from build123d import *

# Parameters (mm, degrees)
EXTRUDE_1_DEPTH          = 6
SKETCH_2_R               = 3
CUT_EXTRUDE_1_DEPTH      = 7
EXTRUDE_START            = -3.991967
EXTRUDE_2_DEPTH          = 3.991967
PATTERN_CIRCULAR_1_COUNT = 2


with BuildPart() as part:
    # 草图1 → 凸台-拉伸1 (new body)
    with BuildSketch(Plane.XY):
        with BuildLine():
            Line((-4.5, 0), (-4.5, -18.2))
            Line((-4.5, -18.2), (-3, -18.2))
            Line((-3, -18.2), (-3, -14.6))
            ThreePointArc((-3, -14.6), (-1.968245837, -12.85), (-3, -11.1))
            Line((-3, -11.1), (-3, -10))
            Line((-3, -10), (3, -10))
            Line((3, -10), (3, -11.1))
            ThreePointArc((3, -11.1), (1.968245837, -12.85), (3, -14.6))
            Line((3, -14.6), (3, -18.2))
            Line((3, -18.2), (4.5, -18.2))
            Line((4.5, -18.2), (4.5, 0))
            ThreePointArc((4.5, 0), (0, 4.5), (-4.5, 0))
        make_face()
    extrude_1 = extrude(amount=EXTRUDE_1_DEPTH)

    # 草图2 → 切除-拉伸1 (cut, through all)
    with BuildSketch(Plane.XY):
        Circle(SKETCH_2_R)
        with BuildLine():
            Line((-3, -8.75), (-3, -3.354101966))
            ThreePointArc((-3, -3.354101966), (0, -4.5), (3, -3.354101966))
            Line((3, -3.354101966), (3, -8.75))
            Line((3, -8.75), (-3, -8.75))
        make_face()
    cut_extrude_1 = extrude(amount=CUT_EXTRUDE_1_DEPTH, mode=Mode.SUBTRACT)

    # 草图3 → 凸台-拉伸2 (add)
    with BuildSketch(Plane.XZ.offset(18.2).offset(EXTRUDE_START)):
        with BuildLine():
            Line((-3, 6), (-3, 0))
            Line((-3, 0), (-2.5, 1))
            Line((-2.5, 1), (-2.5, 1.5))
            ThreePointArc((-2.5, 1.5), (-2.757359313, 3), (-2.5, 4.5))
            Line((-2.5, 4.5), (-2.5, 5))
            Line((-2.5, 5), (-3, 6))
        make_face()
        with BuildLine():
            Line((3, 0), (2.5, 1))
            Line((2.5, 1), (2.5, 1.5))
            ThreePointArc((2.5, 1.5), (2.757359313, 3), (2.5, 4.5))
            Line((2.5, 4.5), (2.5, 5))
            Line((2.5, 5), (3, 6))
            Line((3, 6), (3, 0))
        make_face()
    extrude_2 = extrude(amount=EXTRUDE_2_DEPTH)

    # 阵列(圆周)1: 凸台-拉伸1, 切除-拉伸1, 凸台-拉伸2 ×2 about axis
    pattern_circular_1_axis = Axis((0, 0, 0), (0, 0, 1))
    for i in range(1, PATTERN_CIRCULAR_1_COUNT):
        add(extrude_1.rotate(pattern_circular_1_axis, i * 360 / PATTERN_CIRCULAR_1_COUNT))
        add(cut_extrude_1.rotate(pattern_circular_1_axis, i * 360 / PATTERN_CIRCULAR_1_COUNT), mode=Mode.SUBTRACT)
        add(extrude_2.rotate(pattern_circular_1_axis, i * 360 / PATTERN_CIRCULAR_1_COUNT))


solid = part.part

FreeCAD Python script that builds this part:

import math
import FreeCAD as App
import Part
import Sketcher
from FreeCAD import Vector

doc = App.newDocument("Part")
body = doc.addObject("PartDesign::Body", "Body")

sketch1 = doc.addObject("Sketcher::SketchObject", "Sketch")
body.addObject(sketch1)
sketch1.AttachmentSupport = (doc.XY_Plane, [""])
sketch1.MapMode = "FlatFace"
sketch1.addGeometry(Part.LineSegment(Vector(-4.5, 0, 0), Vector(-4.5, -18.2, 0)), False)
sketch1.addGeometry(Part.LineSegment(Vector(-4.5, -18.2, 0), Vector(-3, -18.2, 0)), False)
sketch1.addGeometry(Part.LineSegment(Vector(-3, -18.2, 0), Vector(-3, -14.6, 0)), False)
sketch1.addGeometry(Part.ArcOfCircle(Part.Circle(Vector(-4, -12.8, 0), Vector(0, 0, 1), 2), math.radians(-61), math.radians(61)), False)
sketch1.addGeometry(Part.LineSegment(Vector(-3, -11.1, 0), Vector(-3, -10, 0)), False)
sketch1.addGeometry(Part.LineSegment(Vector(-3, -10, 0), Vector(3, -10, 0)), False)
sketch1.addGeometry(Part.LineSegment(Vector(3, -10, 0), Vector(3, -11.1, 0)), False)
sketch1.addGeometry(Part.ArcOfCircle(Part.Circle(Vector(4, -12.8, 0), Vector(0, 0, 1), 2), math.radians(119), math.radians(241)), False)
sketch1.addGeometry(Part.LineSegment(Vector(3, -14.6, 0), Vector(3, -18.2, 0)), False)
sketch1.addGeometry(Part.LineSegment(Vector(3, -18.2, 0), Vector(4.5, -18.2, 0)), False)
sketch1.addGeometry(Part.LineSegment(Vector(4.5, -18.2, 0), Vector(4.5, 0, 0)), False)
sketch1.addGeometry(Part.ArcOfCircle(Part.Circle(Vector(0, 0, 0), Vector(0, 0, 1), 4.5), math.radians(0), math.radians(180)), False)
sketch1.addConstraint(Sketcher.Constraint("Coincident", 0, 2, 1, 1))
sketch1.addConstraint(Sketcher.Constraint("Coincident", 1, 2, 2, 1))
sketch1.addConstraint(Sketcher.Constraint("Coincident", 2, 2, 3, 1))
sketch1.addConstraint(Sketcher.Constraint("Coincident", 3, 2, 4, 1))
sketch1.addConstraint(Sketcher.Constraint("Coincident", 4, 2, 5, 1))
sketch1.addConstraint(Sketcher.Constraint("Coincident", 5, 2, 6, 1))
sketch1.addConstraint(Sketcher.Constraint("Coincident", 6, 2, 7, 1))
sketch1.addConstraint(Sketcher.Constraint("Coincident", 7, 2, 8, 1))
sketch1.addConstraint(Sketcher.Constraint("Coincident", 8, 2, 9, 1))
sketch1.addConstraint(Sketcher.Constraint("Coincident", 9, 2, 10, 1))
sketch1.addConstraint(Sketcher.Constraint("Tangent", 10, 2, 11, 1))
sketch1.addConstraint(Sketcher.Constraint("Tangent", 11, 2, 0, 1))
sketch1.addConstraint(Sketcher.Constraint("Vertical", 0))
sketch1.addConstraint(Sketcher.Constraint("Horizontal", 1))
sketch1.addConstraint(Sketcher.Constraint("Vertical", 2))
sketch1.addConstraint(Sketcher.Constraint("Vertical", 4))
sketch1.addConstraint(Sketcher.Constraint("Horizontal", 5))
sketch1.addConstraint(Sketcher.Constraint("Vertical", 6))
sketch1.addConstraint(Sketcher.Constraint("Vertical", 8))
sketch1.addConstraint(Sketcher.Constraint("Horizontal", 9))
sketch1.addConstraint(Sketcher.Constraint("Vertical", 10))
sketch1.addConstraint(Sketcher.Constraint("Coincident", 11, 3, -1, 1))
sketch1.addConstraint(Sketcher.Constraint("Equal", 3, 7))
sketch1.addConstraint(Sketcher.Constraint("Symmetric", 3, 3, 7, 3, -2))
sketch1.addConstraint(Sketcher.Constraint("Symmetric", 1, 2, 8, 2, -2))
sketch1.addConstraint(Sketcher.Constraint("Horizontal", 3, 2, 6, 2))
sketch1.addConstraint(Sketcher.Constraint("Vertical", 2, 2, 3, 2))
sketch1.addConstraint(Sketcher.Constraint("Radius", 3, 2.0))
sketch1.addConstraint(Sketcher.Constraint("Radius", 11, 4.5))
sketch1.addConstraint(Sketcher.Constraint("DistanceX", 5, 1, 5, 2, 6.0))
sketch1.addConstraint(Sketcher.Constraint("DistanceY", 0, 2, 0, 1, 18.2))
sketch1.addConstraint(Sketcher.Constraint("DistanceY", 2, 1, 2, 2, 3.6))
sketch1.addConstraint(Sketcher.Constraint("DistanceY", 4, 1, 4, 2, 1.1))
sketch1.addConstraint(Sketcher.Constraint("DistanceY", 4, 2, -1, 1, 10.0))
pad1 = doc.addObject("PartDesign::Pad", "Pad")
body.addObject(pad1)
pad1.Profile = sketch1
pad1.Length = 6

sketch2 = doc.addObject("Sketcher::SketchObject", "Sketch001")
body.addObject(sketch2)
sketch2.AttachmentSupport = (doc.XY_Plane, [""])
sketch2.MapMode = "FlatFace"
sketch2.addGeometry(Part.Circle(Vector(0, 0, 0), Vector(0, 0, 1), 3), False)
sketch2.addGeometry(Part.LineSegment(Vector(-3, -3.4, 0), Vector(-3, -8.8, 0)), False)
sketch2.addGeometry(Part.LineSegment(Vector(-3, -8.8, 0), Vector(3, -8.8, 0)), False)
sketch2.addGeometry(Part.LineSegment(Vector(3, -8.8, 0), Vector(3, -3.4, 0)), False)
sketch2.addGeometry(Part.ArcOfCircle(Part.Circle(Vector(0, 0, 0), Vector(0, 0, 1), 4.5), math.radians(-132), math.radians(-48)), False)
sketch2.addConstraint(Sketcher.Constraint("Coincident", 1, 2, 2, 1))
sketch2.addConstraint(Sketcher.Constraint("Coincident", 2, 2, 3, 1))
sketch2.addConstraint(Sketcher.Constraint("Coincident", 3, 2, 4, 2))
sketch2.addConstraint(Sketcher.Constraint("Coincident", 4, 1, 1, 1))
sketch2.addConstraint(Sketcher.Constraint("Vertical", 1))
sketch2.addConstraint(Sketcher.Constraint("Horizontal", 2))
sketch2.addConstraint(Sketcher.Constraint("Vertical", 3))
sketch2.addConstraint(Sketcher.Constraint("Coincident", 0, 3, -1, 1))
sketch2.addConstraint(Sketcher.Constraint("Coincident", 4, 3, -1, 1))
sketch2.addConstraint(Sketcher.Constraint("Horizontal", 3, 2, 4, 1))
sketch2.addConstraint(Sketcher.Constraint("Diameter", 0, 6.0))
sketch2.addConstraint(Sketcher.Constraint("Radius", 4, 4.5))
sketch2.addConstraint(Sketcher.Constraint("DistanceX", 2, 1, 2, 2, 6.0))
sketch2.addConstraint(Sketcher.Constraint("DistanceY", 1, 2, -1, 1, 8.75))
pocket1 = doc.addObject("PartDesign::Pocket", "Pocket")
body.addObject(pocket1)
pocket1.Profile = sketch2
pocket1.Type = "ThroughAll"
pocket1.Reversed = True

sketch3 = doc.addObject("Sketcher::SketchObject", "Sketch002")
body.addObject(sketch3)
sketch3.AttachmentSupport = (doc.XZ_Plane, [""])
sketch3.MapMode = "FlatFace"
sketch3.AttachmentOffset = App.Placement(Vector(0, 0, 14.208033), App.Rotation())
sketch3.addGeometry(Part.LineSegment(Vector(-3, 6, 0), Vector(-3, 0, 0)), False)
sketch3.addGeometry(Part.LineSegment(Vector(-3, 0, 0), Vector(-2.5, 1, 0)), False)
sketch3.addGeometry(Part.LineSegment(Vector(-2.5, 1, 0), Vector(-2.5, 1.5, 0)), False)
sketch3.addGeometry(Part.ArcOfCircle(Part.Circle(Vector(1.7, 3, 0), Vector(0, 0, 1), 4.5), math.radians(161), math.radians(199)), False)
sketch3.addGeometry(Part.LineSegment(Vector(-2.5, 4.5, 0), Vector(-2.5, 5, 0)), False)
sketch3.addGeometry(Part.LineSegment(Vector(-2.5, 5, 0), Vector(-3, 6, 0)), False)
sketch3.addGeometry(Part.LineSegment(Vector(2.5, 1, 0), Vector(3, 0, 0)), False)
sketch3.addGeometry(Part.LineSegment(Vector(3, 0, 0), Vector(3, 6, 0)), False)
sketch3.addGeometry(Part.LineSegment(Vector(3, 6, 0), Vector(2.5, 5, 0)), False)
sketch3.addGeometry(Part.LineSegment(Vector(2.5, 5, 0), Vector(2.5, 4.5, 0)), False)
sketch3.addGeometry(Part.ArcOfCircle(Part.Circle(Vector(-1.7, 3, 0), Vector(0, 0, 1), 4.5), math.radians(-19), math.radians(19)), False)
sketch3.addGeometry(Part.LineSegment(Vector(2.5, 1.5, 0), Vector(2.5, 1, 0)), False)
sketch3.addConstraint(Sketcher.Constraint("Coincident", 0, 2, 1, 1))
sketch3.addConstraint(Sketcher.Constraint("Coincident", 1, 2, 2, 1))
sketch3.addConstraint(Sketcher.Constraint("Coincident", 2, 2, 3, 2))
sketch3.addConstraint(Sketcher.Constraint("Coincident", 3, 1, 4, 1))
sketch3.addConstraint(Sketcher.Constraint("Coincident", 4, 2, 5, 1))
sketch3.addConstraint(Sketcher.Constraint("Coincident", 5, 2, 0, 1))
sketch3.addConstraint(Sketcher.Constraint("Coincident", 6, 2, 7, 1))
sketch3.addConstraint(Sketcher.Constraint("Coincident", 7, 2, 8, 1))
sketch3.addConstraint(Sketcher.Constraint("Coincident", 8, 2, 9, 1))
sketch3.addConstraint(Sketcher.Constraint("Coincident", 9, 2, 10, 2))
sketch3.addConstraint(Sketcher.Constraint("Coincident", 10, 1, 11, 1))
sketch3.addConstraint(Sketcher.Constraint("Coincident", 11, 2, 6, 1))
sketch3.addConstraint(Sketcher.Constraint("Vertical", 0))
sketch3.addConstraint(Sketcher.Constraint("Vertical", 2))
sketch3.addConstraint(Sketcher.Constraint("Vertical", 4))
sketch3.addConstraint(Sketcher.Constraint("Vertical", 7))
sketch3.addConstraint(Sketcher.Constraint("Vertical", 9))
sketch3.addConstraint(Sketcher.Constraint("Vertical", 11))
sketch3.addConstraint(Sketcher.Constraint("Equal", 3, 10))
sketch3.addConstraint(Sketcher.Constraint("Symmetric", 0, 2, 6, 2, -1, 1))
sketch3.addConstraint(Sketcher.Constraint("Symmetric", 3, 3, 10, 3, -2))
sketch3.addConstraint(Sketcher.Constraint("Symmetric", 4, 2, 8, 2, -2))
sketch3.addConstraint(Sketcher.Constraint("Symmetric", 1, 2, 11, 2, -2))
sketch3.addConstraint(Sketcher.Constraint("PointOnObject", 0, 2, -1))
sketch3.addConstraint(Sketcher.Constraint("Parallel", 5, 6))
sketch3.addConstraint(Sketcher.Constraint("Parallel", 1, 8))
sketch3.addConstraint(Sketcher.Constraint("Vertical", 2, 2, 3, 1))
sketch3.addConstraint(Sketcher.Constraint("Equal", 2, 4))
sketch3.addConstraint(Sketcher.Constraint("Radius", 3, 4.5))
sketch3.addConstraint(Sketcher.Constraint("DistanceY", 0, 2, 0, 1, 6.0))
sketch3.addConstraint(Sketcher.Constraint("DistanceY", 2, 1, 2, 2, 0.5))
sketch3.addConstraint(Sketcher.Constraint("DistanceX", 0, 2, -1, 1, 3.0))
sketch3.addConstraint(Sketcher.Constraint("DistanceY", -1, 1, 1, 2, 1.0))
sketch3.addConstraint(Sketcher.Constraint("DistanceX", 4, 2, 8, 2, 5.0))
pad2 = doc.addObject("PartDesign::Pad", "Pad001")
body.addObject(pad2)
pad2.Profile = sketch3
pad2.Length = 3.991967
doc.recompute()

polarpattern = doc.addObject("PartDesign::PolarPattern", "PolarPattern")
body.addObject(polarpattern)
polarpattern.Originals = [pad1, pocket1, pad2]
polarpattern.Axis = (doc.Z_Axis, [""])
polarpattern.Angle = 360
polarpattern.Occurrences = 2
body.Tip = polarpattern

doc.recompute()
